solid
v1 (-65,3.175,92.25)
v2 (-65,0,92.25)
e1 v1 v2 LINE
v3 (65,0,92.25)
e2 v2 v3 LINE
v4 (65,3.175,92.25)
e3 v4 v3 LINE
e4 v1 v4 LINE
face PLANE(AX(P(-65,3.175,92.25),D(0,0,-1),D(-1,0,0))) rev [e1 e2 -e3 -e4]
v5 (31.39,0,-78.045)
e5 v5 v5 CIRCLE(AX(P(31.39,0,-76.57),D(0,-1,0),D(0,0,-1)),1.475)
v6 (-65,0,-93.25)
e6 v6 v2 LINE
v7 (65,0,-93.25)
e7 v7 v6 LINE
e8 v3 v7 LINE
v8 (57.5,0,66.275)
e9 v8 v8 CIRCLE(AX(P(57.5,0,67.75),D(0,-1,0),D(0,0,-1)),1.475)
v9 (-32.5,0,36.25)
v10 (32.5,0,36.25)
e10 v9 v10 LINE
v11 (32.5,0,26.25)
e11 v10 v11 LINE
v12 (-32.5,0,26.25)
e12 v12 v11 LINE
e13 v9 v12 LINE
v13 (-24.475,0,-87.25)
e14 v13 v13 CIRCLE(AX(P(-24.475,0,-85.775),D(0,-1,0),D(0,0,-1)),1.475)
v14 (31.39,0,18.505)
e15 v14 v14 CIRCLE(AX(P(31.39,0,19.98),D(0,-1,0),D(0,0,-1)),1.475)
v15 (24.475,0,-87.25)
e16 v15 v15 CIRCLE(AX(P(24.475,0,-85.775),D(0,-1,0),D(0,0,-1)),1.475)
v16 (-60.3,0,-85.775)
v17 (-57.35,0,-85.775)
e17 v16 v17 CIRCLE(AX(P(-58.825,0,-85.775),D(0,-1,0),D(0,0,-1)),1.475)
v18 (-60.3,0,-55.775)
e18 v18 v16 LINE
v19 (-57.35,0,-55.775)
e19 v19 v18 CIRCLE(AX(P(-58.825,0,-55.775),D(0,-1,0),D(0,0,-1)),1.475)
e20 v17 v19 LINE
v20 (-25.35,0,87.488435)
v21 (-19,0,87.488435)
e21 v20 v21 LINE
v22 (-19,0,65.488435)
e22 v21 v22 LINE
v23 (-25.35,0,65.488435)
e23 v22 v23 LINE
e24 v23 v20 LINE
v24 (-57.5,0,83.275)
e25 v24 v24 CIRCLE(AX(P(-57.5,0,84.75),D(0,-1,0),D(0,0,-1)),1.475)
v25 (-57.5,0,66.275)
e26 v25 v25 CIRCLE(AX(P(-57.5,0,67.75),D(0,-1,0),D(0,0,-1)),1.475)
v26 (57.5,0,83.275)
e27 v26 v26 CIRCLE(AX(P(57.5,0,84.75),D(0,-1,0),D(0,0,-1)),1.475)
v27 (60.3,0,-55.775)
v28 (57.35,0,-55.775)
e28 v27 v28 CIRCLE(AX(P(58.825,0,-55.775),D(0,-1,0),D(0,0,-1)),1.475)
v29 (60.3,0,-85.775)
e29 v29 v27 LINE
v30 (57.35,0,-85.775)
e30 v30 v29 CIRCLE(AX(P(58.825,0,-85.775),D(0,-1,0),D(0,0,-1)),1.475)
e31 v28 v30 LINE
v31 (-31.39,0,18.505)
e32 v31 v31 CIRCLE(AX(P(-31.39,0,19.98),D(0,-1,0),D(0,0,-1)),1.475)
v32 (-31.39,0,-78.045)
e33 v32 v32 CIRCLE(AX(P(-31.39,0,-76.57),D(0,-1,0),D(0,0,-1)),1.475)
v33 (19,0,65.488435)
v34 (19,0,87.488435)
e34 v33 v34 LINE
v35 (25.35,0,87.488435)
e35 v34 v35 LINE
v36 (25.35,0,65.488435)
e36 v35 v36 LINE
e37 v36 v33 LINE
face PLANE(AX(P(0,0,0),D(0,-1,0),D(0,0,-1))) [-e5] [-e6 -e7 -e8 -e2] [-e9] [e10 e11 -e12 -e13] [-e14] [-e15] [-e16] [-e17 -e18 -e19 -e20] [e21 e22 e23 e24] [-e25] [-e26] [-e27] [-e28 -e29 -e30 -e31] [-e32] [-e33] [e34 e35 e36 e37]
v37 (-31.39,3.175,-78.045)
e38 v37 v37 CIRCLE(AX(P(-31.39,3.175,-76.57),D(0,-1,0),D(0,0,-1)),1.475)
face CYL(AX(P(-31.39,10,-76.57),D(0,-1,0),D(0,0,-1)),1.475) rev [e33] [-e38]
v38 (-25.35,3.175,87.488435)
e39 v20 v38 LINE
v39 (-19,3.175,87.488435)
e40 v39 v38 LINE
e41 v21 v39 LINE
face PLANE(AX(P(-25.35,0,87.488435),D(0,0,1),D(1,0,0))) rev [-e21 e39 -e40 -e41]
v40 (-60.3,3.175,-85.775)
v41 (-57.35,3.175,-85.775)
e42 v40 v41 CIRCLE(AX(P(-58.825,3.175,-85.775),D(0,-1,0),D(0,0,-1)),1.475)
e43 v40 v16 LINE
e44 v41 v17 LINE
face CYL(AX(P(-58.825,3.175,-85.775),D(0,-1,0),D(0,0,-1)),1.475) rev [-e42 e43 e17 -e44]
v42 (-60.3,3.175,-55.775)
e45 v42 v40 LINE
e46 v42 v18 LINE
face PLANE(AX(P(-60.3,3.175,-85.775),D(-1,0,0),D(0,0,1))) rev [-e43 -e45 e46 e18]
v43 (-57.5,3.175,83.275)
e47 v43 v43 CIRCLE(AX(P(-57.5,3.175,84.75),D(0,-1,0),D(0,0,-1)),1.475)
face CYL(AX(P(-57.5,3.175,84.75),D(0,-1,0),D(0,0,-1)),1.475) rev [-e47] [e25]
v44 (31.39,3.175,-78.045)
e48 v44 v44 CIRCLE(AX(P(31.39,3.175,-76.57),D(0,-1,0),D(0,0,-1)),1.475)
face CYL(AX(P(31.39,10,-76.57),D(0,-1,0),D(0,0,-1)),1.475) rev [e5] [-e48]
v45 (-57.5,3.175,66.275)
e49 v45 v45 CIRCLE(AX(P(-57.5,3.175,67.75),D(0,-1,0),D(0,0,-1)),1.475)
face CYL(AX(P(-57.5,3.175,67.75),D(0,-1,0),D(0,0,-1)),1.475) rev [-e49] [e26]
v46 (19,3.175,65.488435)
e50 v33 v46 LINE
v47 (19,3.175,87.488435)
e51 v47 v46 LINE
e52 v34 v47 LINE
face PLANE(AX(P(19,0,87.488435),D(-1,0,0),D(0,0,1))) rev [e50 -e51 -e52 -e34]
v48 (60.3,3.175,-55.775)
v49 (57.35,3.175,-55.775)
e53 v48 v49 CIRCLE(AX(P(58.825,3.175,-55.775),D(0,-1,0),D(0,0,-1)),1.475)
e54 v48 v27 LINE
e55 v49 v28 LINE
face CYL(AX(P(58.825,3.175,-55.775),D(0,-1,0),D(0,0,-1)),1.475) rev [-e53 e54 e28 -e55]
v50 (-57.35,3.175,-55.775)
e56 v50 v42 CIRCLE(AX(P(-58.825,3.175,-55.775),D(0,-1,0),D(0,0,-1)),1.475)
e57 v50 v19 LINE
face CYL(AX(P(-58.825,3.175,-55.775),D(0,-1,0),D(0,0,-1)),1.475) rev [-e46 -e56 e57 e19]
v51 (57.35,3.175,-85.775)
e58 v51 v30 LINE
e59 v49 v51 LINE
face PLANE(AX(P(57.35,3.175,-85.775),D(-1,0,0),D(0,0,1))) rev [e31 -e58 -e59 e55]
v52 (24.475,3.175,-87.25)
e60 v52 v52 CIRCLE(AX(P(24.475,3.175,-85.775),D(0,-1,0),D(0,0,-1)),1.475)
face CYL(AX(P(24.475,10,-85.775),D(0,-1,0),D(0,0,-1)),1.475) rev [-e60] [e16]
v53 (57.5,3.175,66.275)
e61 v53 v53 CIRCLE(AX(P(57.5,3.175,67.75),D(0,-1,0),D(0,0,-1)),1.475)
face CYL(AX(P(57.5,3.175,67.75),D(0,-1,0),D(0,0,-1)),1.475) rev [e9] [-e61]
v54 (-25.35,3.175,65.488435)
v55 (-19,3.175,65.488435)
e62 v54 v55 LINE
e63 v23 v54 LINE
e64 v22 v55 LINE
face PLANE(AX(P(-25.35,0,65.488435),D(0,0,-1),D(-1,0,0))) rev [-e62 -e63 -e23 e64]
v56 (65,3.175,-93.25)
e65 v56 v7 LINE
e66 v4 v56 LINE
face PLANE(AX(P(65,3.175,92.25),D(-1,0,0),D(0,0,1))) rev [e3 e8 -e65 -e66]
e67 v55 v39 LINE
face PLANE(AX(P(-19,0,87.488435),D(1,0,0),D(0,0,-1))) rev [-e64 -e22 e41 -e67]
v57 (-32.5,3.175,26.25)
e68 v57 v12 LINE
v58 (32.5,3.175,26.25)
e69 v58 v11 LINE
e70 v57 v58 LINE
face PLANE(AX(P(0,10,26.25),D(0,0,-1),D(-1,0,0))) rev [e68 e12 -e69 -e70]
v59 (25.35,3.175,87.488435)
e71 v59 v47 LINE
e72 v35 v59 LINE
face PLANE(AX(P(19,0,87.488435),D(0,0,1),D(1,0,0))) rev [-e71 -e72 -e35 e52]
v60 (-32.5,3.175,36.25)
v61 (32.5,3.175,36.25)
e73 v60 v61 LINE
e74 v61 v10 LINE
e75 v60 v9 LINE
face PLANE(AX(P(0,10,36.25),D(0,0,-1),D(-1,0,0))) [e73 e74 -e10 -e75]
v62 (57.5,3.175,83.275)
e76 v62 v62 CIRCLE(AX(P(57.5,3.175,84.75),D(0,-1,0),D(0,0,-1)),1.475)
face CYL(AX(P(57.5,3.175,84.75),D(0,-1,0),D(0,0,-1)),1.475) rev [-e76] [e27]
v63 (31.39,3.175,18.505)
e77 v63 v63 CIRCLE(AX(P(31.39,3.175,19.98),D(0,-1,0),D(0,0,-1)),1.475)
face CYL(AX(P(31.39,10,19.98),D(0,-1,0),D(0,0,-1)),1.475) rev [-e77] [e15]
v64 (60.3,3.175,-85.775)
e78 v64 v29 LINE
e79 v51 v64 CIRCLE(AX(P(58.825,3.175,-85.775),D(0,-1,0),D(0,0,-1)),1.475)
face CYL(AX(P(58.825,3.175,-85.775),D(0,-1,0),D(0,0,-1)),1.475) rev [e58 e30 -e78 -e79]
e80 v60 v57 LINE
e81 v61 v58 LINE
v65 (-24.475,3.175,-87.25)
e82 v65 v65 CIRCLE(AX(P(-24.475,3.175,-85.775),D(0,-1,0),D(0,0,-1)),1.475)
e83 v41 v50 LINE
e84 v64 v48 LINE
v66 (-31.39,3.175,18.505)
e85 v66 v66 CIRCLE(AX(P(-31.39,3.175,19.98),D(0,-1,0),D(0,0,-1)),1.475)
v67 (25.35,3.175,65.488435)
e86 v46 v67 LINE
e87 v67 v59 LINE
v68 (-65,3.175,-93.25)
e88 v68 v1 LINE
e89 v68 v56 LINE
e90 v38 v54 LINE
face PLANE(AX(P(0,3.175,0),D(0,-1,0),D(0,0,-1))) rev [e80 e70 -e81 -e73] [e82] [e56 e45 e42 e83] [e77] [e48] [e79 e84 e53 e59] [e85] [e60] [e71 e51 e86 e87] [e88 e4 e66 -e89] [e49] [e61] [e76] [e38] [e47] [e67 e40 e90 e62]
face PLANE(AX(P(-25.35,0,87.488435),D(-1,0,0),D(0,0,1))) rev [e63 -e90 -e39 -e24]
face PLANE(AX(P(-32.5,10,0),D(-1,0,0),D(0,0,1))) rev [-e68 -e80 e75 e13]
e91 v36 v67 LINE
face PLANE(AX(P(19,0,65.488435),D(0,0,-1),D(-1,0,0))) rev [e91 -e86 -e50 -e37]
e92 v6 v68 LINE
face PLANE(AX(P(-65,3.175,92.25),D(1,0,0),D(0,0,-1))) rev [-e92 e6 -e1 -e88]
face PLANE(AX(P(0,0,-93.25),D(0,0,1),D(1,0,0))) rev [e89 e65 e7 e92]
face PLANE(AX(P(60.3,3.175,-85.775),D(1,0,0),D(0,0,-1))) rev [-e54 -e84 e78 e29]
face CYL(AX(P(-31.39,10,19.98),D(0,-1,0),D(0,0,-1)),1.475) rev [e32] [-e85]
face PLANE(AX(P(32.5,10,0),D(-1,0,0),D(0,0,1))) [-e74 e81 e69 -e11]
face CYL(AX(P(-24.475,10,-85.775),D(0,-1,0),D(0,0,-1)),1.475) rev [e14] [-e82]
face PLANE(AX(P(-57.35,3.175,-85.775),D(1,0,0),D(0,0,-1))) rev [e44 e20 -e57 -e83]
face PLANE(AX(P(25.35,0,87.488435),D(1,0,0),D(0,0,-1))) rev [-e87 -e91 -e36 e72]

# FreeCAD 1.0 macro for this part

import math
import FreeCAD as App
import Part
import Sketcher
Q = App.Units.Quantity


def add_polygon(sketch, points):
    """Adds a closed chain of lines whose ends are joined by coincident constraints."""
    first, n = sketch.GeometryCount, len(points)
    for a, b in zip(points, points[1:] + points[:1]):
        sketch.addGeometry(Part.LineSegment(App.Vector(*a, 0), App.Vector(*b, 0)), False)
    for i in range(n):
        sketch.addConstraint(Sketcher.Constraint("Coincident", first + i, 2, first + (i + 1) % n, 1))

doc = App.newDocument("Part")
body = doc.addObject("PartDesign::Body", "Body")

sketch1 = doc.addObject("Sketcher::SketchObject", "Sketch")
body.addObject(sketch1)
sketch1.AttachmentSupport = (doc.XZ_Plane, [""])
sketch1.MapMode = "FlatFace"
add_polygon(sketch1, [(-65, -92), (-65, 92), (65, 92), (65, -92)])
sketch1.addConstraint(Sketcher.Constraint("Vertical", 0))
sketch1.addConstraint(Sketcher.Constraint("Horizontal", 1))
sketch1.addConstraint(Sketcher.Constraint("Vertical", 2))
sketch1.addConstraint(Sketcher.Constraint("Horizontal", 3))
sketch1.addConstraint(Sketcher.Constraint("Symmetric", 0, 2, 2, 2, -1, 1))
sketch1.addConstraint(Sketcher.Constraint("DistanceX", 1, 1, 1, 2, Q("130 mm")))
sketch1.addConstraint(Sketcher.Constraint("DistanceY", 0, 1, 0, 2, Q("184.5 mm")))
pad1 = doc.addObject("PartDesign::Pad", "Pad")
body.addObject(pad1)
pad1.Profile = sketch1
pad1.Length = 3.175
pad1.Reversed = True

sketch2 = doc.addObject("Sketcher::SketchObject", "Sketch001")
body.addObject(sketch2)
sketch2.AttachmentSupport = (doc.XZ_Plane, [""])
sketch2.MapMode = "FlatFace"
sketch2.addGeometry(Part.Circle(App.Vector(57.5, 84.8, 0), App.Vector(0, 0, 1), 1.5), False)
sketch2.addGeometry(Part.Circle(App.Vector(57.5, 67.8, 0), App.Vector(0, 0, 1), 1.5), False)
sketch2.addGeometry(Part.Circle(App.Vector(-57.5, 84.8, 0), App.Vector(0, 0, 1), 1.5), False)
sketch2.addGeometry(Part.Circle(App.Vector(-57.5, 67.8, 0), App.Vector(0, 0, 1), 1.5), False)
sketch2.addGeometry(Part.LineSegment(App.Vector(57.4, -55.8, 0), App.Vector(57.4, -85.8, 0)), False)
sketch2.addGeometry(Part.ArcOfCircle(Part.Circle(App.Vector(58.8, -85.8, 0), App.Vector(0, 0, 1), 1.5), math.radians(180), math.radians(360)), False)
sketch2.addGeometry(Part.LineSegment(App.Vector(60.3, -85.8, 0), App.Vector(60.3, -55.8, 0)), False)
sketch2.addGeometry(Part.ArcOfCircle(Part.Circle(App.Vector(58.8, -55.8, 0), App.Vector(0, 0, 1), 1.5), math.radians(0), math.radians(180)), False)
sketch2.addGeometry(Part.LineSegment(App.Vector(-60.3, -55.8, 0), App.Vector(-60.3, -85.8, 0)), False)
sketch2.addGeometry(Part.ArcOfCircle(Part.Circle(App.Vector(-58.8, -85.8, 0), App.Vector(0, 0, 1), 1.5), math.radians(180), math.radians(360)), False)
sketch2.addGeometry(Part.LineSegment(App.Vector(-57.4, -85.8, 0), App.Vector(-57.4, -55.8, 0)), False)
sketch2.addGeometry(Part.ArcOfCircle(Part.Circle(App.Vector(-58.8, -55.8, 0), App.Vector(0, 0, 1), 1.5), math.radians(0), math.radians(180)), False)
sketch2.addConstraint(Sketcher.Constraint("Tangent", 4, 2, 5, 1))
sketch2.addConstraint(Sketcher.Constraint("Tangent", 5, 2, 6, 1))
sketch2.addConstraint(Sketcher.Constraint("Tangent", 6, 2, 7, 1))
sketch2.addConstraint(Sketcher.Constraint("Tangent", 7, 2, 4, 1))
sketch2.addConstraint(Sketcher.Constraint("Tangent", 8, 2, 9, 1))
sketch2.addConstraint(Sketcher.Constraint("Tangent", 9, 2, 10, 1))
sketch2.addConstraint(Sketcher.Constraint("Tangent", 10, 2, 11, 1))
sketch2.addConstraint(Sketcher.Constraint("Tangent", 11, 2, 8, 1))
sketch2.addConstraint(Sketcher.Constraint("Vertical", 4))
sketch2.addConstraint(Sketcher.Constraint("Vertical", 6))
sketch2.addConstraint(Sketcher.Constraint("Vertical", 8))
sketch2.addConstraint(Sketcher.Constraint("Vertical", 10))
sketch2.addConstraint(Sketcher.Constraint("Equal", 0, 1))
sketch2.addConstraint(Sketcher.Constraint("Equal", 1, 2))
sketch2.addConstraint(Sketcher.Constraint("Equal", 2, 3))
sketch2.addConstraint(Sketcher.Constraint("Equal", 3, 5))
sketch2.addConstraint(Sketcher.Constraint("Equal", 7, 9))
sketch2.addConstraint(Sketcher.Constraint("Symmetric", 0, 3, 2, 3, -2))
sketch2.addConstraint(Sketcher.Constraint("Symmetric", 1, 3, 3, 3, -2))
sketch2.addConstraint(Sketcher.Constraint("Symmetric", 5, 3, 9, 3, -2))
sketch2.addConstraint(Sketcher.Constraint("Horizontal", 7, 3, 11, 3))
sketch2.addConstraint(Sketcher.Constraint("Vertical", 0, 3, 1, 3))
sketch2.addConstraint(Sketcher.Constraint("Diameter", 0, Q("2.95 mm")))
sketch2.addConstraint(Sketcher.Constraint("DistanceY", 4, 2, 4, 1, Q("30 mm")))
sketch2.addConstraint(Sketcher.Constraint("DistanceY", 1, 3, 0, 3, Q("17 mm")))
sketch2.addConstraint(Sketcher.Constraint("DistanceX", 2, 3, 0, 3, Q("115 mm")))
sketch2.addConstraint(Sketcher.Constraint("DistanceX", -1, 1, 5, 2, Q("60.3 mm")))
sketch2.addConstraint(Sketcher.Constraint("DistanceY", -1, 1, 0, 3, Q("84.75 mm")))
sketch2.addConstraint(Sketcher.Constraint("DistanceY", 5, 3, -1, 1, Q("85.775 mm")))
pocket1 = doc.addObject("PartDesign::Pocket", "Pocket")
body.addObject(pocket1)
pocket1.Profile = sketch2
pocket1.Type = "ThroughAll"

sketch3 = doc.addObject("Sketcher::SketchObject", "Sketch002")
body.addObject(sketch3)
sketch3.AttachmentSupport = (doc.XZ_Plane, [""])
sketch3.MapMode = "FlatFace"
sketch3.addGeometry(Part.Circle(App.Vector(-24.5, -85.8, 0), App.Vector(0, 0, 1), 1.5), False)
sketch3.addGeometry(Part.Circle(App.Vector(24.5, -85.8, 0), App.Vector(0, 0, 1), 1.5), False)
sketch3.addConstraint(Sketcher.Constraint("Equal", 0, 1))
sketch3.addConstraint(Sketcher.Constraint("Symmetric", 0, 3, 1, 3, -2))
sketch3.addConstraint(Sketcher.Constraint("Diameter", 0, Q("2.95 mm")))
sketch3.addConstraint(Sketcher.Constraint("DistanceX", 0, 3, 1, 3, Q("48.95 mm")))
sketch3.addConstraint(Sketcher.Constraint("DistanceY", 0, 3, -1, 1, Q("85.775 mm")))
pocket2 = doc.addObject("PartDesign::Pocket", "Pocket001")
body.addObject(pocket2)
pocket2.Profile = sketch3
pocket2.Length = 10

sketch4 = doc.addObject("Sketcher::SketchObject", "Sketch003")
body.addObject(sketch4)
sketch4.AttachmentSupport = (doc.XY_Plane, [""])
sketch4.MapMode = "FlatFace"
sketch4.AttachmentOffset = App.Placement(App.Vector(0, 0, -92.25), App.Rotation())
add_polygon(sketch4, [(65, 3.2), (65, 0), (-65, 0), (-65, 3.2)])
sketch4.addConstraint(Sketcher.Constraint("Vertical", 0))
sketch4.addConstraint(Sketcher.Constraint("Horizontal", 1))
sketch4.addConstraint(Sketcher.Constraint("Vertical", 2))
sketch4.addConstraint(Sketcher.Constraint("Horizontal", 3))
sketch4.addConstraint(Sketcher.Constraint("Symmetric", 0, 2, 1, 2, -1, 1))
sketch4.addConstraint(Sketcher.Constraint("DistanceX", 1, 2, 1, 1, Q("130 mm")))
sketch4.addConstraint(Sketcher.Constraint("DistanceY", 0, 2, 0, 1, Q("3.175 mm")))
pad2 = doc.addObject("PartDesign::Pad", "Pad001")
body.addObject(pad2)
pad2.Profile = sketch4
pad2.Length = 1
pad2.Reversed = True

sketch5 = doc.addObject("Sketcher::SketchObject", "Sketch004")
body.addObject(sketch5)
sketch5.AttachmentSupport = (doc.XZ_Plane, [""])
sketch5.MapMode = "FlatFace"
sketch5.AttachmentOffset = App.Placement(App.Vector(0, 0, -3.175), App.Rotation())
add_polygon(sketch5, [(-25, 65), (-25, 87), (-19, 87), (-19, 65)])
add_polygon(sketch5, [(19, 65), (19, 87), (25, 87), (25, 65)])
sketch5.addConstraint(Sketcher.Constraint("Vertical", 0))
sketch5.addConstraint(Sketcher.Constraint("Horizontal", 1))
sketch5.addConstraint(Sketcher.Constraint("Vertical", 2))
sketch5.addConstraint(Sketcher.Constraint("Horizontal", 3))
sketch5.addConstraint(Sketcher.Constraint("Vertical", 4))
sketch5.addConstraint(Sketcher.Constraint("Horizontal", 5))
sketch5.addConstraint(Sketcher.Constraint("Vertical", 6))
sketch5.addConstraint(Sketcher.Constraint("Horizontal", 7))
sketch5.addConstraint(Sketcher.Constraint("Symmetric", 1, 2, 4, 2, -2))
sketch5.addConstraint(Sketcher.Constraint("Symmetric", 3, 2, 6, 2, -2))
sketch5.addConstraint(Sketcher.Constraint("DistanceY", 0, 1, 0, 2, Q("22 mm")))
sketch5.addConstraint(Sketcher.Constraint("DistanceX", 1, 2, -1, 1, Q("19 mm")))
sketch5.addConstraint(Sketcher.Constraint("DistanceX", 1, 1, 1, 2, Q("6.35 mm")))
sketch5.addConstraint(Sketcher.Constraint("DistanceY", -1, 1, 0, 2, Q("87.488435 mm")))
pocket3 = doc.addObject("PartDesign::Pocket", "Pocket002")
body.addObject(pocket3)
pocket3.Profile = sketch5
pocket3.Type = "ThroughAll"
pocket3.Midplane = True

sketch6 = doc.addObject("Sketcher::SketchObject", "Sketch005")
body.addObject(sketch6)
sketch6.AttachmentSupport = (doc.XZ_Plane, [""])
sketch6.MapMode = "FlatFace"
add_polygon(sketch6, [(-32, 36), (-32, 26), (32, 26), (32, 36)])
sketch6.addConstraint(Sketcher.Constraint("Vertical", 0))
sketch6.addConstraint(Sketcher.Constraint("Horizontal", 1))
sketch6.addConstraint(Sketcher.Constraint("Vertical", 2))
sketch6.addConstraint(Sketcher.Constraint("Horizontal", 3))
sketch6.addConstraint(Sketcher.Constraint("DistanceX", 1, 1, 1, 2, Q("65 mm")))
sketch6.addConstraint(Sketcher.Constraint("DistanceY", 0, 2, 0, 1, Q("10 mm")))
sketch6.addConstraint(Sketcher.Constraint("DistanceX", 0, 2, -1, 1, Q("32.5 mm")))
sketch6.addConstraint(Sketcher.Constraint("DistanceY", -1, 1, 0, 2, Q("26.25 mm")))
pocket4 = doc.addObject("PartDesign::Pocket", "Pocket003")
body.addObject(pocket4)
pocket4.Profile = sketch6
pocket4.Length = 10

sketch7 = doc.addObject("Sketcher::SketchObject", "Sketch006")
body.addObject(sketch7)
sketch7.AttachmentSupport = (doc.XZ_Plane, [""])
sketch7.MapMode = "FlatFace"
sketch7.addGeometry(Part.ArcOfCircle(Part.Circle(App.Vector(30, 12.8, 0), App.Vector(0, 0, 1), 1.5), math.radians(-180), math.radians(-90)), False)
sketch7.addGeometry(Part.ArcOfCircle(Part.Circle(App.Vector(30, 12.8, 0), App.Vector(0, 0, 1), 1.5), math.radians(-90), math.radians(180)), False)
sketch7.addGeometry(Part.ArcOfCircle(Part.Circle(App.Vector(30, -75.3, 0), App.Vector(0, 0, 1), 1.5), math.radians(90), math.radians(180)), False)
sketch7.addGeometry(Part.ArcOfCircle(Part.Circle(App.Vector(30, -75.2, 0), App.Vector(0, 0, 1), 1.5), math.radians(180), math.radians(450)), False)
sketch7.addGeometry(Part.Circle(App.Vector(-30, 12.8, 0), App.Vector(0, 0, 1), 1.5), False)
sketch7.addGeometry(Part.Circle(App.Vector(-30, -75.2, 0), App.Vector(0, 0, 1), 1.5), False)
sketch7.addConstraint(Sketcher.Constraint("Tangent", 0, 1, 1, 2))
sketch7.addConstraint(Sketcher.Constraint("Coincident", 1, 1, 0, 2))
sketch7.addConstraint(Sketcher.Constraint("Tangent", 2, 1, 3, 2))
sketch7.addConstraint(Sketcher.Constraint("Coincident", 3, 1, 2, 2))
sketch7.addConstraint(Sketcher.Constraint("Equal", 1, 2))
sketch7.addConstraint(Sketcher.Constraint("Equal", 3, 4))
sketch7.addConstraint(Sketcher.Constraint("Equal", 4, 5))
sketch7.addConstraint(Sketcher.Constraint("Symmetric", 0, 3, 4, 3, -2))
sketch7.addConstraint(Sketcher.Constraint("Symmetric", 2, 3, 5, 3, -2))
sketch7.addConstraint(Sketcher.Constraint("Horizontal", 4, 3, 0, 1))
sketch7.addConstraint(Sketcher.Constraint("Horizontal", 5, 3, 3, 1))
sketch7.addConstraint(Sketcher.Constraint("Vertical", 1, 3, 2, 3))
sketch7.addConstraint(Sketcher.Constraint("Vertical", 3, 3, 1, 1))
sketch7.addConstraint(Sketcher.Constraint("Vertical", 1, 1, 2, 1))
sketch7.addConstraint(Sketcher.Constraint("Diameter", 4, Q("2.95 mm")))
sketch7.addConstraint(Sketcher.Constraint("DistanceX", -1, 1, 0, 3, Q("30 mm")))
sketch7.addConstraint(Sketcher.Constraint("DistanceY", 2, 3, 1, 3, Q("88 mm")))
sketch7.addConstraint(Sketcher.Constraint("DistanceY", -1, 1, 0, 3, Q("12.75 mm")))
pocket5 = doc.addObject("PartDesign::Pocket", "Pocket004")
body.addObject(pocket5)
pocket5.Profile = sketch7
pocket5.Length = 75

sketch8 = doc.addObject("Sketcher::SketchObject", "Sketch007")
body.addObject(sketch8)
sketch8.AttachmentSupport = (doc.XZ_Plane, [""])
sketch8.MapMode = "FlatFace"
add_polygon(sketch8, [(41, -80), (41, 18), (-37, 18), (-37, -80)])
sketch8.addConstraint(Sketcher.Constraint("Vertical", 0))
sketch8.addConstraint(Sketcher.Constraint("Horizontal", 1))
sketch8.addConstraint(Sketcher.Constraint("Vertical", 2))
sketch8.addConstraint(Sketcher.Constraint("Horizontal", 3))
sketch8.addConstraint(Sketcher.Constraint("DistanceX", 1, 2, 1, 1, Q("78.139022 mm")))
sketch8.addConstraint(Sketcher.Constraint("DistanceY", 0, 1, 0, 2, Q("97.798202 mm")))
sketch8.addConstraint(Sketcher.Constraint("DistanceY", -1, 1, 0, 2, Q("18.163779 mm")))
sketch8.addConstraint(Sketcher.Constraint("DistanceX", -1, 1, 0, 2, Q("41.060314 mm")))
pad3 = doc.addObject("PartDesign::Pad", "Pad002")
body.addObject(pad3)
pad3.Profile = sketch8
pad3.Length = 3.175
pad3.Reversed = True

sketch9 = doc.addObject("Sketcher::SketchObject", "Sketch008")
body.addObject(sketch9)
sketch9.AttachmentSupport = (doc.XZ_Plane, [""])
sketch9.MapMode = "FlatFace"
sketch9.addGeometry(Part.Circle(App.Vector(-31.4, 20, 0), App.Vector(0, 0, 1), 1.5), False)
sketch9.addGeometry(Part.Circle(App.Vector(-31.4, -76.6, 0), App.Vector(0, 0, 1), 1.5), False)
sketch9.addGeometry(Part.Circle(App.Vector(31.4, 20, 0), App.Vector(0, 0, 1), 1.5), False)
sketch9.addGeometry(Part.Circle(App.Vector(31.4, -76.6, 0), App.Vector(0, 0, 1), 1.5), False)
sketch9.addConstraint(Sketcher.Constraint("Equal", 0, 1))
sketch9.addConstraint(Sketcher.Constraint("Equal", 1, 2))
sketch9.addConstraint(Sketcher.Constraint("Equal", 2, 3))
sketch9.addConstraint(Sketcher.Constraint("Symmetric", 0, 3, 2, 3, -2))
sketch9.addConstraint(Sketcher.Constraint("Symmetric", 1, 3, 3, 3, -2))
sketch9.addConstraint(Sketcher.Constraint("Vertical", 0, 3, 1, 3))
sketch9.addConstraint(Sketcher.Constraint("Diameter", 0, Q("2.95 mm")))
sketch9.addConstraint(Sketcher.Constraint("DistanceX", 0, 3, -1, 1, Q("31.39 mm")))
sketch9.addConstraint(Sketcher.Constraint("DistanceY", -1, 1, 0, 3, Q("19.98 mm")))
sketch9.addConstraint(Sketcher.Constraint("DistanceY", 1, 3, -1, 1, Q("76.57 mm")))
pocket6 = doc.addObject("PartDesign::Pocket", "Pocket005")
body.addObject(pocket6)
pocket6.Profile = sketch9
pocket6.Length = 10

doc.recompute()
